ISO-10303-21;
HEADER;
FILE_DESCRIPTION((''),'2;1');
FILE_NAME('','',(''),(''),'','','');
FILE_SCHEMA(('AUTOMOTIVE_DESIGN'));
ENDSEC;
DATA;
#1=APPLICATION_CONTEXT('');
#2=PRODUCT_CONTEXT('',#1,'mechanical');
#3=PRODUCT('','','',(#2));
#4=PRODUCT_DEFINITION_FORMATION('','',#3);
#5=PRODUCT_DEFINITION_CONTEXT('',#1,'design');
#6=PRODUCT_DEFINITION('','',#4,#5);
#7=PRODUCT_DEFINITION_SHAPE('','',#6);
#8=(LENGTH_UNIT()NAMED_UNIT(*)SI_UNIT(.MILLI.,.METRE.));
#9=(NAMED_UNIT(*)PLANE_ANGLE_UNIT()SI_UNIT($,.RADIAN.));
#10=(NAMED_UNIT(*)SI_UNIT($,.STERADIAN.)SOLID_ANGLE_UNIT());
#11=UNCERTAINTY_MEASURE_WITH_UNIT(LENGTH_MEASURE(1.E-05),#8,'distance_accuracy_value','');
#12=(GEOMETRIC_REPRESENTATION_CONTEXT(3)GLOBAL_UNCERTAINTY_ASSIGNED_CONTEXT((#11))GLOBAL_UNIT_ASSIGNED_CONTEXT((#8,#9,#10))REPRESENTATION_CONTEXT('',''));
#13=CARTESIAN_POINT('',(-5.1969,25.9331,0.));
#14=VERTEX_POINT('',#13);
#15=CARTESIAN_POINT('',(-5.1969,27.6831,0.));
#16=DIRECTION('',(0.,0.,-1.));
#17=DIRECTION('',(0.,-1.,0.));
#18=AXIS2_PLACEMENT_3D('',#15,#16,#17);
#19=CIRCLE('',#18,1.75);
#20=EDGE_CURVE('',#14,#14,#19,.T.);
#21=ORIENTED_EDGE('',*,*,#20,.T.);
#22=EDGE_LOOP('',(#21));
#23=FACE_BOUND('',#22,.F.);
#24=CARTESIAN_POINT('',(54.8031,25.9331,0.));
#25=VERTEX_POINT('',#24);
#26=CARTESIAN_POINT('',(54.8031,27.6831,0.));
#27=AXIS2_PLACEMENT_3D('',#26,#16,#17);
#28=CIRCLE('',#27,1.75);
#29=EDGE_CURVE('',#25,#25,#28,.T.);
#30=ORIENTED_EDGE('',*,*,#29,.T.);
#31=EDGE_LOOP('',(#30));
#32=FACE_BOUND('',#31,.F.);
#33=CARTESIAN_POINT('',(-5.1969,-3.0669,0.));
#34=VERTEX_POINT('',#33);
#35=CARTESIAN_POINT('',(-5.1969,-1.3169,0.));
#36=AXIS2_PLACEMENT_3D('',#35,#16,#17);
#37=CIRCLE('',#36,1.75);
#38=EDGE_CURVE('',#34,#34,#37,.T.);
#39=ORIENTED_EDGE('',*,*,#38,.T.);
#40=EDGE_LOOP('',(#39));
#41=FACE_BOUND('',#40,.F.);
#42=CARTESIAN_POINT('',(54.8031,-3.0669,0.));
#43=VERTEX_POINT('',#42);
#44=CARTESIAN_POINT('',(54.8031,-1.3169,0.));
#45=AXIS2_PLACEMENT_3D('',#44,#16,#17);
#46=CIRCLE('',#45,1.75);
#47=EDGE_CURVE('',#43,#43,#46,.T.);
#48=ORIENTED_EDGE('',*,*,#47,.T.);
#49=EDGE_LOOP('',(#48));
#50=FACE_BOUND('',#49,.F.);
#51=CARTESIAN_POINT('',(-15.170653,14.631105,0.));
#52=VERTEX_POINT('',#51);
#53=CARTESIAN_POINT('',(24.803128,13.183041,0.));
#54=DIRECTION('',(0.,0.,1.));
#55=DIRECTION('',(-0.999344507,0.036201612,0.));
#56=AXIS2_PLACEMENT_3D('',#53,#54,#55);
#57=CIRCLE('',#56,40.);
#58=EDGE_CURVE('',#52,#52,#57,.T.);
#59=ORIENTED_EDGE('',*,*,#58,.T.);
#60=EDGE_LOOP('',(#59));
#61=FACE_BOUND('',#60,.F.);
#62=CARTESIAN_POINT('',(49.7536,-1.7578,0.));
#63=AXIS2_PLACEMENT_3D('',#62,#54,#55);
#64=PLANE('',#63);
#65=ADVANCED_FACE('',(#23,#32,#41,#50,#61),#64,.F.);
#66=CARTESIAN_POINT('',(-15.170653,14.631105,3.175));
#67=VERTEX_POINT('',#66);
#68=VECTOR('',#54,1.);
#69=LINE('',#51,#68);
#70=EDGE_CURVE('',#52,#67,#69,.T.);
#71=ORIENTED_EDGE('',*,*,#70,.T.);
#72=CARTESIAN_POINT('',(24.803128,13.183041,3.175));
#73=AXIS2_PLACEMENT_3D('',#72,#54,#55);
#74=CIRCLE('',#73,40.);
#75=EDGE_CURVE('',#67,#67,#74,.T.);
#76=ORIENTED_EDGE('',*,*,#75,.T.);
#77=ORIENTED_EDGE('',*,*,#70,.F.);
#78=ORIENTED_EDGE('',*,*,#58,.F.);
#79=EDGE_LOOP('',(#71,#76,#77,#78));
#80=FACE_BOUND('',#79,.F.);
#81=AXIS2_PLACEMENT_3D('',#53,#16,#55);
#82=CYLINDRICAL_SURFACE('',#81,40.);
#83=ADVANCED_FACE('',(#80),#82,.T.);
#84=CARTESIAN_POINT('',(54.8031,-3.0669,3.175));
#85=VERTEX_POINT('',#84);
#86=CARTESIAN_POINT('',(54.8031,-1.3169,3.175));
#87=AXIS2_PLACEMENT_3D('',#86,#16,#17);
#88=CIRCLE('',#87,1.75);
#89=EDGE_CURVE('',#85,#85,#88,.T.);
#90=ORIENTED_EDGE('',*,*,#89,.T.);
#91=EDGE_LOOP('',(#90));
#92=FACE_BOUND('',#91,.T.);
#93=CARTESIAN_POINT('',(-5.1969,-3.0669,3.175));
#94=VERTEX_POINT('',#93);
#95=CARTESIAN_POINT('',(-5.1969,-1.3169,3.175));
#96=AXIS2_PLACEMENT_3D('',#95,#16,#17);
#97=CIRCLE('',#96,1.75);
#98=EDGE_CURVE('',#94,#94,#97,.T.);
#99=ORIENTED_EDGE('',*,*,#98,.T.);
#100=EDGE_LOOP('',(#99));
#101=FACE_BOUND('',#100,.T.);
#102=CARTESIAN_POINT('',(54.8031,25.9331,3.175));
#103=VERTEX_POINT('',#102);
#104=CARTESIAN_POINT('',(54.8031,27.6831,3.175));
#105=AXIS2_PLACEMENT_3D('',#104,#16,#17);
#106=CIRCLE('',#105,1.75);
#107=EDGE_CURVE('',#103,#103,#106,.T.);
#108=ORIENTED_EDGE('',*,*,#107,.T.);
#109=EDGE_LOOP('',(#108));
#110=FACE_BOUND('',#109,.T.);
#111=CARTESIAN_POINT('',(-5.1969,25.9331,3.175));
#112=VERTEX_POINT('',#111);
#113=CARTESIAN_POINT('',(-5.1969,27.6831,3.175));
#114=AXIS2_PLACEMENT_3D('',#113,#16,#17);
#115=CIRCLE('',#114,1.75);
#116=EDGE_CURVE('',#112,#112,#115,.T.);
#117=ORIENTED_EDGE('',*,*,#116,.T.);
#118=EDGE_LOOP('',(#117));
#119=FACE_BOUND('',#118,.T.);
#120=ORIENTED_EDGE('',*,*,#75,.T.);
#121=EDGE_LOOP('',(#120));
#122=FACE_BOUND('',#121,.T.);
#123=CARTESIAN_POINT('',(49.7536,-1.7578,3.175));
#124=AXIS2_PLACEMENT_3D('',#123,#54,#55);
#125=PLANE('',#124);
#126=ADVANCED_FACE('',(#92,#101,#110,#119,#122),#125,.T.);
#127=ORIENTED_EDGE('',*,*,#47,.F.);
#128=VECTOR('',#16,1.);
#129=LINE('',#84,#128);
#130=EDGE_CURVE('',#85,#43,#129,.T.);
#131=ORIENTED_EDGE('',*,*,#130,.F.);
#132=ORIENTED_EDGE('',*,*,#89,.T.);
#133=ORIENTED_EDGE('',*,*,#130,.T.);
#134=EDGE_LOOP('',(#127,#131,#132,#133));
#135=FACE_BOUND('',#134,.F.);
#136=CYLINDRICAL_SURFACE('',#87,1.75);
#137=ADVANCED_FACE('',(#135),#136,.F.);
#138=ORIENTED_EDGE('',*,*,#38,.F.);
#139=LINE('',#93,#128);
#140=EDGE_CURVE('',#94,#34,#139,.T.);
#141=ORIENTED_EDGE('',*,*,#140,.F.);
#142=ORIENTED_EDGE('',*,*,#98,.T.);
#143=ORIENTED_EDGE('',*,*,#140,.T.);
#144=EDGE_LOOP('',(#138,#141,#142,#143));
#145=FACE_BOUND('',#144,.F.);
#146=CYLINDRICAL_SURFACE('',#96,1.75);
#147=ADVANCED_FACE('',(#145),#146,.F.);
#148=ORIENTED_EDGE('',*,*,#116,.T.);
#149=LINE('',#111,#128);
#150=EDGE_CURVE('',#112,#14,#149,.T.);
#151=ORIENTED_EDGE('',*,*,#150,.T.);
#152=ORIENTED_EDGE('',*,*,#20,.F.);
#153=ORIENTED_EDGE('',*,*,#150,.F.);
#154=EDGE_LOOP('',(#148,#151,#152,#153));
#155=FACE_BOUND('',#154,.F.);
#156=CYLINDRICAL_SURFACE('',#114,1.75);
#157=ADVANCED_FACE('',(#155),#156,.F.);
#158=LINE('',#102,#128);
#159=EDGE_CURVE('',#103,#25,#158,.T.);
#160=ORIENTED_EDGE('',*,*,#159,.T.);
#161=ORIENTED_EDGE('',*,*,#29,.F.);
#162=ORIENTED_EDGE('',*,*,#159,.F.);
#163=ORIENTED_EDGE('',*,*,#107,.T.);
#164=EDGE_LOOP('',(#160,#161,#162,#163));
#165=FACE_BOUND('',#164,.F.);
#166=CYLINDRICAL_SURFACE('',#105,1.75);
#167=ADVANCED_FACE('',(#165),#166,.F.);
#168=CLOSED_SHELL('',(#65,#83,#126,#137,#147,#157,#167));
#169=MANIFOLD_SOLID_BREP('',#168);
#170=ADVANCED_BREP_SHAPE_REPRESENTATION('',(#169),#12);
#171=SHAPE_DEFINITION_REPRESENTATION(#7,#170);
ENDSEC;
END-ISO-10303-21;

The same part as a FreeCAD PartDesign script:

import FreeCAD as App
import Part
import Sketcher

V = App.Vector
Q = App.Units.Quantity

doc = App.newDocument("Part")
body = doc.addObject("PartDesign::Body", "Body")

sketch1 = body.newObject("Sketcher::SketchObject", "Sketch")
sketch1.AttachmentSupport = (doc.getObject("XY_Plane"), [""])
sketch1.MapMode = "FlatFace"
sketch1.addGeometry(Part.Circle(V(25, 13, 0), V(0, 0, 1), 40), False)
sketch1.addConstraint(Sketcher.Constraint("Diameter", 0, Q("3.1496 in")))
sketch1.addConstraint(Sketcher.Constraint("DistanceX", -1, 1, 0, 3, Q("0.9765 in")))
sketch1.addConstraint(Sketcher.Constraint("DistanceY", -1, 1, 0, 3, 13.183))
pad1 = body.newObject("PartDesign::Pad", "Pad")
pad1.Profile = sketch1
pad1.Length = Q("0.125 in")

sketch2 = body.newObject("Sketcher::SketchObject", "Sketch001")
sketch2.AttachmentSupport = (doc.getObject("XY_Plane"), [""])
sketch2.MapMode = "FlatFace"
sketch2.AttachmentOffset = App.Placement(V(0, 0, 0.125 * 25.4), App.Rotation())
sketch2.addGeometry(Part.Circle(V(54.8, 27.7, 0), V(0, 0, 1), 1.8), False)
sketch2.addGeometry(Part.Circle(V(54.8, -1.3, 0), V(0, 0, 1), 1.8), False)
sketch2.addGeometry(Part.Circle(V(-5.2, -1.3, 0), V(0, 0, 1), 1.8), False)
sketch2.addGeometry(Part.Circle(V(-5.2, 27.7, 0), V(0, 0, 1), 1.8), False)
sketch2.addConstraint(Sketcher.Constraint("Equal", 0, 1))
sketch2.addConstraint(Sketcher.Constraint("Equal", 1, 2))
sketch2.addConstraint(Sketcher.Constraint("Equal", 2, 3))
sketch2.addConstraint(Sketcher.Constraint("Horizontal", 1, 3, 2, 3))
sketch2.addConstraint(Sketcher.Constraint("Horizontal", 0, 3, 3, 3))
sketch2.addConstraint(Sketcher.Constraint("Vertical", 0, 3, 1, 3))
sketch2.addConstraint(Sketcher.Constraint("Vertical", 2, 3, 3, 3))
sketch2.addConstraint(Sketcher.Constraint("Diameter", 0, Q("0.1378 in")))
sketch2.addConstraint(Sketcher.Constraint("DistanceX", -1, 1, 0, 3, Q("2.1576 in")))
sketch2.addConstraint(Sketcher.Constraint("DistanceX", 2, 3, -1, 1, Q("0.2046 in")))
sketch2.addConstraint(Sketcher.Constraint("DistanceY", -1, 1, 0, 3, 27.683))
sketch2.addConstraint(Sketcher.Constraint("DistanceY", 1, 3, -1, 1, 1.317))
doc.recompute()
hole = body.newObject("PartDesign::Hole", "Hole")
hole.Profile = sketch2
hole.ThreadType = "None"
hole.Diameter = Q("0.1377953 in")
hole.DepthType = "ThroughAll"

doc.recompute()
